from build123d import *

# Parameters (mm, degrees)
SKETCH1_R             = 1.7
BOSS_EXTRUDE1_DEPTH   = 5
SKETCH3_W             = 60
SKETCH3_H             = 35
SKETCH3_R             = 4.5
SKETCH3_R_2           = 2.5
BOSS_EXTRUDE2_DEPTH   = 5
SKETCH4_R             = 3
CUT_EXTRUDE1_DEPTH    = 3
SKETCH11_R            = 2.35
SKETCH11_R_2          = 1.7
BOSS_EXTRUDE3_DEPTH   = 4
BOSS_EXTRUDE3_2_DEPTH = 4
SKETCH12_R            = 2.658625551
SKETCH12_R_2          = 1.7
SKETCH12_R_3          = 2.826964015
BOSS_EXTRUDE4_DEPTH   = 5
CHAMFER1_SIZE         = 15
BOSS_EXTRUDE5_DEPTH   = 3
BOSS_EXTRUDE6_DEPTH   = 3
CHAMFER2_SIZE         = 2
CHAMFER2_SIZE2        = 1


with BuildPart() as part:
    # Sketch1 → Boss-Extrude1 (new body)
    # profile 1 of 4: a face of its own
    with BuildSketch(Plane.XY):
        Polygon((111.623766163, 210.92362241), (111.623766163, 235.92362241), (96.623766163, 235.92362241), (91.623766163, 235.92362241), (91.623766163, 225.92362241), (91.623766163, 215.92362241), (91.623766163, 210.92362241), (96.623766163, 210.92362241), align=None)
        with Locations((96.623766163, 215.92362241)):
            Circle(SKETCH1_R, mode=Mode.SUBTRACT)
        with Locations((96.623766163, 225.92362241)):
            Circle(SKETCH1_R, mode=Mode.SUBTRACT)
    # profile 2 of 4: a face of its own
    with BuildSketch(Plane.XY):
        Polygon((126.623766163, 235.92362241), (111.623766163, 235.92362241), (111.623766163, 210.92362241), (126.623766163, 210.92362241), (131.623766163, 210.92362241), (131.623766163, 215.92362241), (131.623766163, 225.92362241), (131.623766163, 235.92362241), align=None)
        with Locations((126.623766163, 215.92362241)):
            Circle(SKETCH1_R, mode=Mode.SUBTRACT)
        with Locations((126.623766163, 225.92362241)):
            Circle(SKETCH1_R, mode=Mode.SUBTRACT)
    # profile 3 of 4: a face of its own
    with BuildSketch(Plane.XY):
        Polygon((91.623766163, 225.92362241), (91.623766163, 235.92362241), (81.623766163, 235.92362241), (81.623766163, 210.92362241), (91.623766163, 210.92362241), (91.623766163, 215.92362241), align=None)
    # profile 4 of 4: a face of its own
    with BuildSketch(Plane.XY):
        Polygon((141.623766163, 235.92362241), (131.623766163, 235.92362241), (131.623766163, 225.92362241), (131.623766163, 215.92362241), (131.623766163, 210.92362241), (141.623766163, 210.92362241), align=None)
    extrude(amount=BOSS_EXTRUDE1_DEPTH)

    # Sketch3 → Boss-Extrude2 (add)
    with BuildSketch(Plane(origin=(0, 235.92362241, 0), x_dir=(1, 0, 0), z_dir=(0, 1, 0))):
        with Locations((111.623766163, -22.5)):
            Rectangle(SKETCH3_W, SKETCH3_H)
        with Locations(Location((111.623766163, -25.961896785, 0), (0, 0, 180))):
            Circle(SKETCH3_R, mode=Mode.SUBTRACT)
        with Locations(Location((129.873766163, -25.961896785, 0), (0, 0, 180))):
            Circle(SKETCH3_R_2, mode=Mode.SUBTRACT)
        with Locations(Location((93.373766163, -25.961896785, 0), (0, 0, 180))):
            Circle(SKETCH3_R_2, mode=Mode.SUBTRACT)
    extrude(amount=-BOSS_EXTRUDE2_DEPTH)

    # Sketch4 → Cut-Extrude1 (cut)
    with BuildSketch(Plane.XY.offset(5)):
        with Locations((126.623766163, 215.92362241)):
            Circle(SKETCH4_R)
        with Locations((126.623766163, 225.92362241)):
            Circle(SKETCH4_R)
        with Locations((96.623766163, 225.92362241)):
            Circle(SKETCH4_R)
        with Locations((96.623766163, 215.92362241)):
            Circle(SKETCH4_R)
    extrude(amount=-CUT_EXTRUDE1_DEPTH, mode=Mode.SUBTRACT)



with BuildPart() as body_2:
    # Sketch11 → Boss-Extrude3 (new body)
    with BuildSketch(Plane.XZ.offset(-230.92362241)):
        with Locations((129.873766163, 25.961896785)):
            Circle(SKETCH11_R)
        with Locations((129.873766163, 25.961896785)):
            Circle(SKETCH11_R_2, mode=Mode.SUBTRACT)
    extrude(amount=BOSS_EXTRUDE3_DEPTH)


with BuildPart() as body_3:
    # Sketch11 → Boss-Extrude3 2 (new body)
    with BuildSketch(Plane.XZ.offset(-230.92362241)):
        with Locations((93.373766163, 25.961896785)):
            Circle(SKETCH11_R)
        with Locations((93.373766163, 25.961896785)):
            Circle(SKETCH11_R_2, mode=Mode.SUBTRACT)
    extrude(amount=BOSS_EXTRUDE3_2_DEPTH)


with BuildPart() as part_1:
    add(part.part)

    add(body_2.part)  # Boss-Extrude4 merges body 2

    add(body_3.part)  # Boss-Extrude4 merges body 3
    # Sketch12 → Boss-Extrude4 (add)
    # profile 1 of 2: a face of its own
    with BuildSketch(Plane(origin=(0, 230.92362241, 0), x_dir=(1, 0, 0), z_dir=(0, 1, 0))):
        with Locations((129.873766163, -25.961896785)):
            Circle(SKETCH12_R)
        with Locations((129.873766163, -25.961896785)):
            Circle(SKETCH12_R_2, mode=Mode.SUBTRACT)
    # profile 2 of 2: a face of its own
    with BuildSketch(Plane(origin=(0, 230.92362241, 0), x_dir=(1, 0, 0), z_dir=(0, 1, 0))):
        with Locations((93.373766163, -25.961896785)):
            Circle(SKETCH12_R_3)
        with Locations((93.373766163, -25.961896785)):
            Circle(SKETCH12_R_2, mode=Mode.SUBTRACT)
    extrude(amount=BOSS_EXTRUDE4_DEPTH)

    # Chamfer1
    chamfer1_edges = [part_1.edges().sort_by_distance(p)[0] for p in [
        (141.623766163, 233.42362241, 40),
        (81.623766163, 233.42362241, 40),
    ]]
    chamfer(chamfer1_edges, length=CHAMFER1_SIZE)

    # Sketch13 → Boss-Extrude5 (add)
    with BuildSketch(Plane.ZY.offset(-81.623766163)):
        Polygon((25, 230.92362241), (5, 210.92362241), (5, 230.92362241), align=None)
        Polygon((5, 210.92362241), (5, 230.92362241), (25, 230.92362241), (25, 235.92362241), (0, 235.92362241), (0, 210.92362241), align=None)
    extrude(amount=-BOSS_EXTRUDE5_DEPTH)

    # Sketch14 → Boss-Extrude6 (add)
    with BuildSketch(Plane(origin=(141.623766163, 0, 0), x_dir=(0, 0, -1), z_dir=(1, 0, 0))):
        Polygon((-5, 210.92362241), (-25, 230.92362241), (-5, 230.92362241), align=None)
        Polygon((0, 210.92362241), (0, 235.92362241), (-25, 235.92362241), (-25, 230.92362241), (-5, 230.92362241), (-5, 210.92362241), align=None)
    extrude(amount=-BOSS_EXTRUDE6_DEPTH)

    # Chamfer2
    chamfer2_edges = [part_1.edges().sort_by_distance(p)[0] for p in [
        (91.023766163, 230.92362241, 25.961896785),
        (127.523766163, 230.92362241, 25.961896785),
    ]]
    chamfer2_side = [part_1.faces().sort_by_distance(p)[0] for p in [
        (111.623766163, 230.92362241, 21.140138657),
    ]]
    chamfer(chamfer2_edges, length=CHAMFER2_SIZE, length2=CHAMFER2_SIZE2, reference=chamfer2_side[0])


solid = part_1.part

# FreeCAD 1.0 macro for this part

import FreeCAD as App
import Part
import Sketcher

V = App.Vector
Q = App.Units.Quantity


def edges_at(feature, points):
    """Names of the edges that pass closest to the given points."""
    edges = feature.Shape.Edges
    near = lambda p: min(range(len(edges)), key=lambda i: edges[i].distToShape(Part.Vertex(*p))[0])
    return sorted({f"Edge{near(p) + 1}" for p in points})

doc = App.newDocument("Part")
body = doc.addObject("PartDesign::Body", "Body")

# Sketch on XY plane
sketch1 = body.newObject("Sketcher::SketchObject", "Sketch")
sketch1.AttachmentSupport = (doc.getObject("XY_Plane"), [""])
sketch1.MapMode = "FlatFace"
sketch1.addGeometry([
    Part.LineSegment(V(141.623766, 210.923622, 0), V(141.623766, 235.923622, 0)),  # 0
    Part.LineSegment(V(141.623766, 235.923622, 0), V(81.623766, 235.923622, 0)),  # 1
    Part.LineSegment(V(81.623766, 235.923622, 0), V(81.623766, 210.923622, 0)),  # 2
    Part.LineSegment(V(81.623766, 210.923622, 0), V(141.623766, 210.923622, 0)),  # 3
    Part.Circle(V(96.623766, 215.923622, 0), V(0, 0, 1), 1.7),  # 4
    Part.Circle(V(96.623766, 225.923622, 0), V(0, 0, 1), 1.7),  # 5
    Part.Circle(V(126.623766, 225.923622, 0), V(0, 0, 1), 1.7),  # 6
    Part.Circle(V(126.623766, 215.923622, 0), V(0, 0, 1), 1.7),  # 7
], False)
sketch1.addConstraint([
    Sketcher.Constraint("Coincident", 0, 2, 1, 1),
    Sketcher.Constraint("Coincident", 1, 2, 2, 1),
    Sketcher.Constraint("Coincident", 2, 2, 3, 1),
    Sketcher.Constraint("Coincident", 3, 2, 0, 1),
    Sketcher.Constraint("Vertical", 0),
    Sketcher.Constraint("Horizontal", 1),
    Sketcher.Constraint("Vertical", 2),
    Sketcher.Constraint("Horizontal", 3),
    Sketcher.Constraint("Equal", 4, 5),
    Sketcher.Constraint("Equal", 5, 6),
    Sketcher.Constraint("Equal", 6, 7),
    Sketcher.Constraint("Horizontal", 5, 3, 6, 3),
    Sketcher.Constraint("Horizontal", 4, 3, 7, 3),
    Sketcher.Constraint("Vertical", 4, 3, 5, 3),
    Sketcher.Constraint("Vertical", 6, 3, 7, 3),
    Sketcher.Constraint("Diameter", 4, Q("3.4 mm")),
    Sketcher.Constraint("DistanceX", 1, 2, 1, 1, Q("60 mm")),
    Sketcher.Constraint("DistanceY", 0, 1, 0, 2, Q("25 mm")),
    Sketcher.Constraint("DistanceY", 4, 3, 5, 3, Q("10 mm")),
    Sketcher.Constraint("DistanceX", 5, 3, 6, 3, Q("30 mm")),
    Sketcher.Constraint("DistanceX", 6, 3, 0, 2, Q("15 mm")),
    Sketcher.Constraint("DistanceY", 6, 3, 0, 2, Q("10 mm")),
    Sketcher.Constraint("DistanceX", -1, 1, 4, 3, Q("96.623766 mm")),
    Sketcher.Constraint("DistanceY", -1, 1, 4, 3, Q("215.923622 mm")),
])
pad1 = body.newObject("PartDesign::Pad", "Pad")
pad1.Profile = sketch1
pad1.Length = 5

# Sketch on XZ plane
sketch2 = body.newObject("Sketcher::SketchObject", "Sketch001")
sketch2.AttachmentSupport = (doc.getObject("XZ_Plane"), [""])
sketch2.MapMode = "FlatFace"
sketch2.AttachmentOffset = App.Placement(V(0, 0, -235.923622), App.Rotation())
sketch2.addGeometry([
    Part.LineSegment(V(81.623766, 5, 0), V(81.623766, 40, 0)),  # 0
    Part.LineSegment(V(81.623766, 40, 0), V(141.623766, 40, 0)),  # 1
    Part.LineSegment(V(141.623766, 40, 0), V(141.623766, 5, 0)),  # 2
    Part.LineSegment(V(141.623766, 5, 0), V(81.623766, 5, 0)),  # 3
    Part.Circle(V(93.373766, 25.961897, 0), V(0, 0, 1), 2.5),  # 4
    Part.Circle(V(111.623766, 25.961897, 0), V(0, 0, 1), 4.5),  # 5
    Part.Circle(V(129.873766, 25.961897, 0), V(0, 0, 1), 2.5),  # 6
], False)
sketch2.addConstraint([
    Sketcher.Constraint("Coincident", 0, 2, 1, 1),
    Sketcher.Constraint("Coincident", 1, 2, 2, 1),
    Sketcher.Constraint("Coincident", 2, 2, 3, 1),
    Sketcher.Constraint("Coincident", 3, 2, 0, 1),
    Sketcher.Constraint("Vertical", 0),
    Sketcher.Constraint("Horizontal", 1),
    Sketcher.Constraint("Vertical", 2),
    Sketcher.Constraint("Horizontal", 3),
    Sketcher.Constraint("Equal", 4, 6),
    Sketcher.Constraint("Horizontal", 4, 3, 5, 3),
    Sketcher.Constraint("Horizontal", 5, 3, 6, 3),
    Sketcher.Constraint("Diameter", 4, Q("5 mm")),
    Sketcher.Constraint("Diameter", 5, Q("9 mm")),
    Sketcher.Constraint("DistanceX", 1, 1, 1, 2, Q("60 mm")),
    Sketcher.Constraint("DistanceY", 0, 1, 0, 2, Q("35 mm")),
    Sketcher.Constraint("DistanceY", -1, 1, 0, 2, Q("40 mm")),
    Sketcher.Constraint("DistanceX", 0, 2, 5, 3, Q("30 mm")),
    Sketcher.Constraint("DistanceX", 4, 3, 6, 3, Q("36.5 mm")),
    Sketcher.Constraint("DistanceX", 4, 3, 5, 3, Q("18.25 mm")),
    Sketcher.Constraint("DistanceX", -1, 1, 4, 3, Q("93.373766 mm")),
    Sketcher.Constraint("DistanceY", -1, 1, 4, 3, Q("25.961897 mm")),
])
pad2 = body.newObject("PartDesign::Pad", "Pad001")
pad2.Profile = sketch2
pad2.Length = 5

# Sketch on XY plane
sketch3 = body.newObject("Sketcher::SketchObject", "Sketch002")
sketch3.AttachmentSupport = (doc.getObject("XY_Plane"), [""])
sketch3.MapMode = "FlatFace"
sketch3.AttachmentOffset = App.Placement(V(0, 0, 5), App.Rotation())
sketch3.addGeometry([
    Part.Circle(V(126.623766, 215.923622, 0), V(0, 0, 1), 3),
    Part.Circle(V(126.623766, 225.923622, 0), V(0, 0, 1), 3),
    Part.Circle(V(96.623766, 225.923622, 0), V(0, 0, 1), 3),
    Part.Circle(V(96.623766, 215.923622, 0), V(0, 0, 1), 3),
], False)
sketch3.addConstraint([
    Sketcher.Constraint("Equal", 0, 1),
    Sketcher.Constraint("Equal", 1, 2),
    Sketcher.Constraint("Equal", 2, 3),
    Sketcher.Constraint("Horizontal", 1, 3, 2, 3),
    Sketcher.Constraint("Horizontal", 0, 3, 3, 3),
    Sketcher.Constraint("Vertical", 0, 3, 1, 3),
    Sketcher.Constraint("Vertical", 2, 3, 3, 3),
    Sketcher.Constraint("Diameter", 0, Q("6 mm")),
    Sketcher.Constraint("DistanceY", 0, 3, 1, 3, Q("10 mm")),
    Sketcher.Constraint("DistanceX", 2, 3, 1, 3, Q("30 mm")),
    Sketcher.Constraint("DistanceX", -1, 1, 0, 3, Q("126.623766 mm")),
    Sketcher.Constraint("DistanceY", -1, 1, 0, 3, Q("215.923622 mm")),
])
pocket1 = body.newObject("PartDesign::Pocket", "Pocket")
pocket1.Profile = sketch3
pocket1.Length = 3
body2 = doc.addObject("PartDesign::Body", "Body001")

# Sketch on XZ plane
sketch4 = body2.newObject("Sketcher::SketchObject", "Sketch003")
sketch4.AttachmentSupport = (doc.getObject("XZ_Plane001"), [""])
sketch4.MapMode = "FlatFace"
sketch4.AttachmentOffset = App.Placement(V(0, 0, -230.923622), App.Rotation())
sketch4.addGeometry([
    Part.Circle(V(129.873766, 25.961897, 0), V(0, 0, 1), 2.35),
    Part.Circle(V(129.873766, 25.961897, 0), V(0, 0, 1), 1.7),
], False)
sketch4.addConstraint([
    Sketcher.Constraint("Coincident", 1, 3, 0, 3),
    Sketcher.Constraint("Diameter", 0, Q("4.7 mm")),
    Sketcher.Constraint("Diameter", 1, Q("3.4 mm")),
    Sketcher.Constraint("DistanceX", -1, 1, 0, 3, Q("129.873766 mm")),
    Sketcher.Constraint("DistanceY", -1, 1, 0, 3, Q("25.961897 mm")),
])
pad3 = body2.newObject("PartDesign::Pad", "Pad002")
pad3.Profile = sketch4
pad3.Length = 4
body3 = doc.addObject("PartDesign::Body", "Body002")

# Sketch on XZ plane
sketch5 = body3.newObject("Sketcher::SketchObject", "Sketch004")
sketch5.AttachmentSupport = (doc.getObject("XZ_Plane002"), [""])
sketch5.MapMode = "FlatFace"
sketch5.AttachmentOffset = App.Placement(V(0, 0, -230.923622), App.Rotation())
sketch5.addGeometry([
    Part.Circle(V(93.373766, 25.961897, 0), V(0, 0, 1), 2.35),
    Part.Circle(V(93.373766, 25.961897, 0), V(0, 0, 1), 1.7),
], False)
sketch5.addConstraint([
    Sketcher.Constraint("Coincident", 1, 3, 0, 3),
    Sketcher.Constraint("Diameter", 0, Q("4.7 mm")),
    Sketcher.Constraint("Diameter", 1, Q("3.4 mm")),
    Sketcher.Constraint("DistanceX", -1, 1, 0, 3, Q("93.373766 mm")),
    Sketcher.Constraint("DistanceY", -1, 1, 0, 3, Q("25.961897 mm")),
])
pad4 = body3.newObject("PartDesign::Pad", "Pad003")
pad4.Profile = sketch5
pad4.Length = 4
body.AllowCompound = True
doc.recompute()

boolean = body.newObject("PartDesign::Boolean", "Boolean")
boolean.Type = "Fuse"
boolean.addObjects([body2])
doc.recompute()

boolean2 = body.newObject("PartDesign::Boolean", "Boolean001")
boolean2.Type = "Fuse"
boolean2.addObjects([body3])

# Sketch on XZ plane
sketch6 = body.newObject("Sketcher::SketchObject", "Sketch005")
sketch6.AttachmentSupport = (doc.getObject("XZ_Plane"), [""])
sketch6.MapMode = "FlatFace"
sketch6.AttachmentOffset = App.Placement(V(0, 0, -230.923622), App.Rotation())
sketch6.addGeometry([
    Part.Circle(V(129.873766, 25.961897, 0), V(0, 0, 1), 2.658626),
    Part.Circle(V(129.873766, 25.961897, 0), V(0, 0, 1), 1.7),
    Part.Circle(V(93.373766, 25.961897, 0), V(0, 0, 1), 2.826964),
    Part.Circle(V(93.373766, 25.961897, 0), V(0, 0, 1), 1.7),
], False)
sketch6.addConstraint([
    Sketcher.Constraint("Coincident", 1, 3, 0, 3),
    Sketcher.Constraint("Coincident", 3, 3, 2, 3),
    Sketcher.Constraint("Equal", 1, 3),
    Sketcher.Constraint("Horizontal", 1, 3, 2, 3),
    Sketcher.Constraint("Diameter", 1, Q("3.4 mm")),
    Sketcher.Constraint("DistanceX", 2, 3, 0, 3, Q("36.5 mm")),
    Sketcher.Constraint("Diameter", 0, Q("5.317251 mm")),
    Sketcher.Constraint("Diameter", 2, Q("5.653928 mm")),
    Sketcher.Constraint("DistanceX", -1, 1, 0, 3, Q("129.873766 mm")),
    Sketcher.Constraint("DistanceY", -1, 1, 0, 3, Q("25.961897 mm")),
])
pad5 = body.newObject("PartDesign::Pad", "Pad004")
pad5.Profile = sketch6
pad5.Length = 5
pad5.Reversed = True
doc.recompute()

chamfer = body.newObject("PartDesign::Chamfer", "Chamfer")
chamfer.Base = (pad5, edges_at(pad5, [(141.624, 233.424, 40), (81.624, 233.424, 40)]))
chamfer.Size = 15

# Sketch on YZ plane
sketch7 = body.newObject("Sketcher::SketchObject", "Sketch006")
sketch7.AttachmentSupport = (doc.getObject("YZ_Plane"), [""])
sketch7.MapMode = "FlatFace"
sketch7.AttachmentOffset = App.Placement(V(0, 0, 81.623766), App.Rotation())
sketch7.addGeometry([
    Part.LineSegment(V(210.923622, 5, 0), V(230.923622, 25, 0)),  # 0
    Part.LineSegment(V(230.923622, 25, 0), V(235.923622, 25, 0)),  # 1
    Part.LineSegment(V(235.923622, 25, 0), V(235.923622, 0, 0)),  # 2
    Part.LineSegment(V(235.923622, 0, 0), V(210.923622, 0, 0)),  # 3
    Part.LineSegment(V(210.923622, 0, 0), V(210.923622, 5, 0)),  # 4
], False)
sketch7.addConstraint([
    Sketcher.Constraint("Coincident", 0, 2, 1, 1),
    Sketcher.Constraint("Coincident", 1, 2, 2, 1),
    Sketcher.Constraint("Coincident", 2, 2, 3, 1),
    Sketcher.Constraint("Coincident", 3, 2, 4, 1),
    Sketcher.Constraint("Coincident", 4, 2, 0, 1),
    Sketcher.Constraint("Horizontal", 1),
    Sketcher.Constraint("Vertical", 2),
    Sketcher.Constraint("Horizontal", 3),
    Sketcher.Constraint("Vertical", 4),
    Sketcher.Constraint("PointOnObject", 2, 2, -1),
    Sketcher.Constraint("Equal", 3, 2),
    Sketcher.Constraint("Equal", 1, 4),
    Sketcher.Constraint("DistanceX", 1, 1, 1, 2, Q("5 mm")),
    Sketcher.Constraint("DistanceX", 3, 2, 3, 1, Q("25 mm")),
    Sketcher.Constraint("DistanceX", -1, 1, 0, 2, Q("230.923622 mm")),
])
pad6 = body.newObject("PartDesign::Pad", "Pad005")
pad6.Profile = sketch7
pad6.Length = 3

# Sketch on YZ plane
sketch8 = body.newObject("Sketcher::SketchObject", "Sketch007")
sketch8.AttachmentSupport = (doc.getObject("YZ_Plane"), [""])
sketch8.MapMode = "FlatFace"
sketch8.AttachmentOffset = App.Placement(V(0, 0, 141.623766), App.Rotation())
sketch8.addGeometry([
    Part.LineSegment(V(230.923622, 25, 0), V(210.923622, 5, 0)),  # 0
    Part.LineSegment(V(210.923622, 5, 0), V(210.923622, 0, 0)),  # 1
    Part.LineSegment(V(210.923622, 0, 0), V(235.923622, 0, 0)),  # 2
    Part.LineSegment(V(235.923622, 0, 0), V(235.923622, 25, 0)),  # 3
    Part.LineSegment(V(235.923622, 25, 0), V(230.923622, 25, 0)),  # 4
], False)
sketch8.addConstraint([
    Sketcher.Constraint("Coincident", 0, 2, 1, 1),
    Sketcher.Constraint("Coincident", 1, 2, 2, 1),
    Sketcher.Constraint("Coincident", 2, 2, 3, 1),
    Sketcher.Constraint("Coincident", 3, 2, 4, 1),
    Sketcher.Constraint("Coincident", 4, 2, 0, 1),
    Sketcher.Constraint("Vertical", 1),
    Sketcher.Constraint("Horizontal", 2),
    Sketcher.Constraint("Vertical", 3),
    Sketcher.Constraint("Horizontal", 4),
    Sketcher.Constraint("PointOnObject", 1, 2, -1),
    Sketcher.Constraint("Equal", 4, 1),
    Sketcher.Constraint("Equal", 2, 3),
    Sketcher.Constraint("DistanceX", 2, 1, 2, 2, Q("25 mm")),
    Sketcher.Constraint("DistanceX", 4, 2, 4, 1, Q("5 mm")),
    Sketcher.Constraint("DistanceX", -1, 1, 0, 2, Q("210.923622 mm")),
])
pad7 = body.newObject("PartDesign::Pad", "Pad006")
pad7.Profile = sketch8
pad7.Length = 3
pad7.Reversed = True
doc.recompute()

chamfer2 = body.newObject("PartDesign::Chamfer", "Chamfer001")
chamfer2.Base = (pad7, edges_at(pad7, [(91.024, 230.924, 25.962), (127.524, 230.924, 25.962)]))
chamfer2.ChamferType = "Two distances"
chamfer2.Size = 2
chamfer2.Size2 = 1

doc.recompute()
